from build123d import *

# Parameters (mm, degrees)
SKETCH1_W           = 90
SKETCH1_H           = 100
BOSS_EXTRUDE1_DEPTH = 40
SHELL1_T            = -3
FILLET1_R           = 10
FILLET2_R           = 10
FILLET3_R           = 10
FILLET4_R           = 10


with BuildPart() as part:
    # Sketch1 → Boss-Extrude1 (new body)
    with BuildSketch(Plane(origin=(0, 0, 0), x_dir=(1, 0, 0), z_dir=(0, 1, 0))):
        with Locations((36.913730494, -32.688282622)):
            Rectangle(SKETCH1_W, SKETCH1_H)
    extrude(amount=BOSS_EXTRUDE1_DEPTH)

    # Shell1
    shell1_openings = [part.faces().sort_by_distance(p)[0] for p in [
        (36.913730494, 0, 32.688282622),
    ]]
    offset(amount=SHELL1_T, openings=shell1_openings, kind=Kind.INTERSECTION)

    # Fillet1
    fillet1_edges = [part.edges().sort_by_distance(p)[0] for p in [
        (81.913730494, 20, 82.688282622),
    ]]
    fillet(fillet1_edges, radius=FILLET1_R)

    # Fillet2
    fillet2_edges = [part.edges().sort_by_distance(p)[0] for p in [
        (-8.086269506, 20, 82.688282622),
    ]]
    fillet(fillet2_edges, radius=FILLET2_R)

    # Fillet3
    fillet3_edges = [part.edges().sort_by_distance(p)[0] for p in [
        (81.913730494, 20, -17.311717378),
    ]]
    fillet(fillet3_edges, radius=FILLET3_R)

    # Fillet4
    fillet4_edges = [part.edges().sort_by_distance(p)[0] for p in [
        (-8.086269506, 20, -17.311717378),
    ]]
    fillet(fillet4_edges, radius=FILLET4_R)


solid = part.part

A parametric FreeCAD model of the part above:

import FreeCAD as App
import Part
import Sketcher


def edges_at(feature, points):
    """Names of the edges that pass closest to the given points."""
    edges = feature.Shape.Edges
    near = lambda p: min(range(len(edges)), key=lambda i: edges[i].distToShape(Part.Vertex(*p))[0])
    return sorted({f"Edge{near(p) + 1}" for p in points})


def faces_at(feature, points):
    """Names of the faces that lie closest to the given points."""
    faces = feature.Shape.Faces
    near = lambda p: min(range(len(faces)), key=lambda i: faces[i].distToShape(Part.Vertex(*p))[0])
    return sorted({f"Face{near(p) + 1}" for p in points})


def add_polygon(sketch, points):
    """Adds a closed chain of lines whose ends are joined by coincident constraints."""
    first, n = sketch.GeometryCount, len(points)
    for a, b in zip(points, points[1:] + points[:1]):
        sketch.addGeometry(Part.LineSegment(App.Vector(*a, 0), App.Vector(*b, 0)), False)
    for i in range(n):
        sketch.addConstraint(Sketcher.Constraint("Coincident", first + i, 2, first + (i + 1) % n, 1))

doc = App.newDocument("Part")
body = doc.addObject("PartDesign::Body", "Body")

# Sketch on XZ plane
sketch1 = body.newObject("Sketcher::SketchObject", "Sketch")
sketch1.AttachmentSupport = (doc.getObject("XZ_Plane"), [""])
sketch1.MapMode = "FlatFace"
add_polygon(sketch1, [(-8, -17), (-8, 83), (82, 83), (82, -17)])  # lines 0-3
sketch1.addConstraint(Sketcher.Constraint("Vertical", 0))
sketch1.addConstraint(Sketcher.Constraint("Horizontal", 1))
sketch1.addConstraint(Sketcher.Constraint("Vertical", 2))
sketch1.addConstraint(Sketcher.Constraint("Horizontal", 3))
sketch1.addConstraint(Sketcher.Constraint("DistanceX", 1, 1, 1, 2, 90.0))
sketch1.addConstraint(Sketcher.Constraint("DistanceY", 0, 1, 0, 2, 100.0))
sketch1.addConstraint(Sketcher.Constraint("DistanceX", 0, 2, -1, 1, 8.08627))
sketch1.addConstraint(Sketcher.Constraint("DistanceY", -1, 1, 0, 2, 82.688283))
pad1 = body.newObject("PartDesign::Pad", "Pad")
pad1.Profile = sketch1
pad1.Length = 40
pad1.Reversed = True
doc.recompute()

thickness = body.newObject("PartDesign::Thickness", "Thickness")
thickness.Base = (pad1, faces_at(pad1, [(36.914, 0, 32.688)]))
thickness.Value = 3
thickness.Reversed = True
thickness.Join = "Intersection"
doc.recompute()

fillet = body.newObject("PartDesign::Fillet", "Fillet")
fillet.Base = (thickness, edges_at(thickness, [(81.914, 20, 82.688)]))
fillet.Radius = 10
doc.recompute()

fillet2 = body.newObject("PartDesign::Fillet", "Fillet001")
fillet2.Base = (fillet, edges_at(fillet, [(-8.086, 20, 82.688)]))
fillet2.Radius = 10
doc.recompute()

fillet3 = body.newObject("PartDesign::Fillet", "Fillet002")
fillet3.Base = (fillet2, edges_at(fillet2, [(81.914, 20, -17.312)]))
fillet3.Radius = 10
doc.recompute()

fillet4 = body.newObject("PartDesign::Fillet", "Fillet003")
fillet4.Base = (fillet3, edges_at(fillet3, [(-8.086, 20, -17.312)]))
fillet4.Radius = 10

doc.recompute()
